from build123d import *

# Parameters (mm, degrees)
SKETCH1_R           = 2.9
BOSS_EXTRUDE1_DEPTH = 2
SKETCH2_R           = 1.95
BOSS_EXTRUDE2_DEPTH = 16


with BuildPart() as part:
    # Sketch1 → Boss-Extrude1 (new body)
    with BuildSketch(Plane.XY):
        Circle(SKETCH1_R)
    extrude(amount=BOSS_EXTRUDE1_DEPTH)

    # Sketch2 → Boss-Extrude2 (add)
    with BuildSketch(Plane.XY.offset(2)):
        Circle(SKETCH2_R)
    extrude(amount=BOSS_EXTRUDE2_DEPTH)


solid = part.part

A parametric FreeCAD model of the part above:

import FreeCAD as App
import Part
import Sketcher
Q = App.Units.Quantity

doc = App.newDocument("Part")
params = doc.addObject("Spreadsheet::Sheet", "Params")
for row, (alias, value) in enumerate([
    ("sketch1_diameter", "5.8 mm"),
    ("pad1_length", "2 mm"),
    ("sketch2_diameter", "3.9 mm"),
    ("pad2_length", "16 mm"),
], start=1):
    params.set(f"A{row}", alias)
    params.set(f"B{row}", "=" + value)
    params.setAlias(f"B{row}", alias)

body = doc.addObject("PartDesign::Body", "Body")

# Sketch on XY plane
sketch1 = doc.addObject("Sketcher::SketchObject", "Sketch")
body.addObject(sketch1)
sketch1.AttachmentSupport = (doc.XY_Plane, [""])
sketch1.MapMode = "FlatFace"
sketch1.addGeometry(Part.Circle(App.Vector(0, 0, 0), App.Vector(0, 0, 1), 2.9), False)
sketch1.addConstraint([
    Sketcher.Constraint("Coincident", 0, 3, -1, 1),
    Sketcher.Constraint("Diameter", 0, Q("5.8 mm")),
])
sketch1.setExpression("Constraints[1]", "Params.sketch1_diameter")
pad1 = doc.addObject("PartDesign::Pad", "Pad")
body.addObject(pad1)
pad1.Profile = sketch1
pad1.setExpression("Length", "Params.pad1_length")

# Sketch on XY plane
sketch2 = doc.addObject("Sketcher::SketchObject", "Sketch001")
body.addObject(sketch2)
sketch2.AttachmentSupport = (doc.XY_Plane, [""])
sketch2.MapMode = "FlatFace"
sketch2.AttachmentOffset = App.Placement(App.Vector(0, 0, 2), App.Rotation())
sketch2.addGeometry(Part.Circle(App.Vector(0, 0, 0), App.Vector(0, 0, 1), 1.9), False)
sketch2.addConstraint([
    Sketcher.Constraint("Coincident", 0, 3, -1, 1),
    Sketcher.Constraint("Diameter", 0, Q("3.9 mm")),
])
sketch2.setExpression("Constraints[1]", "Params.sketch2_diameter")
pad2 = doc.addObject("PartDesign::Pad", "Pad001")
body.addObject(pad2)
pad2.Profile = sketch2
pad2.setExpression("Length", "Params.pad2_length")

doc.recompute()
